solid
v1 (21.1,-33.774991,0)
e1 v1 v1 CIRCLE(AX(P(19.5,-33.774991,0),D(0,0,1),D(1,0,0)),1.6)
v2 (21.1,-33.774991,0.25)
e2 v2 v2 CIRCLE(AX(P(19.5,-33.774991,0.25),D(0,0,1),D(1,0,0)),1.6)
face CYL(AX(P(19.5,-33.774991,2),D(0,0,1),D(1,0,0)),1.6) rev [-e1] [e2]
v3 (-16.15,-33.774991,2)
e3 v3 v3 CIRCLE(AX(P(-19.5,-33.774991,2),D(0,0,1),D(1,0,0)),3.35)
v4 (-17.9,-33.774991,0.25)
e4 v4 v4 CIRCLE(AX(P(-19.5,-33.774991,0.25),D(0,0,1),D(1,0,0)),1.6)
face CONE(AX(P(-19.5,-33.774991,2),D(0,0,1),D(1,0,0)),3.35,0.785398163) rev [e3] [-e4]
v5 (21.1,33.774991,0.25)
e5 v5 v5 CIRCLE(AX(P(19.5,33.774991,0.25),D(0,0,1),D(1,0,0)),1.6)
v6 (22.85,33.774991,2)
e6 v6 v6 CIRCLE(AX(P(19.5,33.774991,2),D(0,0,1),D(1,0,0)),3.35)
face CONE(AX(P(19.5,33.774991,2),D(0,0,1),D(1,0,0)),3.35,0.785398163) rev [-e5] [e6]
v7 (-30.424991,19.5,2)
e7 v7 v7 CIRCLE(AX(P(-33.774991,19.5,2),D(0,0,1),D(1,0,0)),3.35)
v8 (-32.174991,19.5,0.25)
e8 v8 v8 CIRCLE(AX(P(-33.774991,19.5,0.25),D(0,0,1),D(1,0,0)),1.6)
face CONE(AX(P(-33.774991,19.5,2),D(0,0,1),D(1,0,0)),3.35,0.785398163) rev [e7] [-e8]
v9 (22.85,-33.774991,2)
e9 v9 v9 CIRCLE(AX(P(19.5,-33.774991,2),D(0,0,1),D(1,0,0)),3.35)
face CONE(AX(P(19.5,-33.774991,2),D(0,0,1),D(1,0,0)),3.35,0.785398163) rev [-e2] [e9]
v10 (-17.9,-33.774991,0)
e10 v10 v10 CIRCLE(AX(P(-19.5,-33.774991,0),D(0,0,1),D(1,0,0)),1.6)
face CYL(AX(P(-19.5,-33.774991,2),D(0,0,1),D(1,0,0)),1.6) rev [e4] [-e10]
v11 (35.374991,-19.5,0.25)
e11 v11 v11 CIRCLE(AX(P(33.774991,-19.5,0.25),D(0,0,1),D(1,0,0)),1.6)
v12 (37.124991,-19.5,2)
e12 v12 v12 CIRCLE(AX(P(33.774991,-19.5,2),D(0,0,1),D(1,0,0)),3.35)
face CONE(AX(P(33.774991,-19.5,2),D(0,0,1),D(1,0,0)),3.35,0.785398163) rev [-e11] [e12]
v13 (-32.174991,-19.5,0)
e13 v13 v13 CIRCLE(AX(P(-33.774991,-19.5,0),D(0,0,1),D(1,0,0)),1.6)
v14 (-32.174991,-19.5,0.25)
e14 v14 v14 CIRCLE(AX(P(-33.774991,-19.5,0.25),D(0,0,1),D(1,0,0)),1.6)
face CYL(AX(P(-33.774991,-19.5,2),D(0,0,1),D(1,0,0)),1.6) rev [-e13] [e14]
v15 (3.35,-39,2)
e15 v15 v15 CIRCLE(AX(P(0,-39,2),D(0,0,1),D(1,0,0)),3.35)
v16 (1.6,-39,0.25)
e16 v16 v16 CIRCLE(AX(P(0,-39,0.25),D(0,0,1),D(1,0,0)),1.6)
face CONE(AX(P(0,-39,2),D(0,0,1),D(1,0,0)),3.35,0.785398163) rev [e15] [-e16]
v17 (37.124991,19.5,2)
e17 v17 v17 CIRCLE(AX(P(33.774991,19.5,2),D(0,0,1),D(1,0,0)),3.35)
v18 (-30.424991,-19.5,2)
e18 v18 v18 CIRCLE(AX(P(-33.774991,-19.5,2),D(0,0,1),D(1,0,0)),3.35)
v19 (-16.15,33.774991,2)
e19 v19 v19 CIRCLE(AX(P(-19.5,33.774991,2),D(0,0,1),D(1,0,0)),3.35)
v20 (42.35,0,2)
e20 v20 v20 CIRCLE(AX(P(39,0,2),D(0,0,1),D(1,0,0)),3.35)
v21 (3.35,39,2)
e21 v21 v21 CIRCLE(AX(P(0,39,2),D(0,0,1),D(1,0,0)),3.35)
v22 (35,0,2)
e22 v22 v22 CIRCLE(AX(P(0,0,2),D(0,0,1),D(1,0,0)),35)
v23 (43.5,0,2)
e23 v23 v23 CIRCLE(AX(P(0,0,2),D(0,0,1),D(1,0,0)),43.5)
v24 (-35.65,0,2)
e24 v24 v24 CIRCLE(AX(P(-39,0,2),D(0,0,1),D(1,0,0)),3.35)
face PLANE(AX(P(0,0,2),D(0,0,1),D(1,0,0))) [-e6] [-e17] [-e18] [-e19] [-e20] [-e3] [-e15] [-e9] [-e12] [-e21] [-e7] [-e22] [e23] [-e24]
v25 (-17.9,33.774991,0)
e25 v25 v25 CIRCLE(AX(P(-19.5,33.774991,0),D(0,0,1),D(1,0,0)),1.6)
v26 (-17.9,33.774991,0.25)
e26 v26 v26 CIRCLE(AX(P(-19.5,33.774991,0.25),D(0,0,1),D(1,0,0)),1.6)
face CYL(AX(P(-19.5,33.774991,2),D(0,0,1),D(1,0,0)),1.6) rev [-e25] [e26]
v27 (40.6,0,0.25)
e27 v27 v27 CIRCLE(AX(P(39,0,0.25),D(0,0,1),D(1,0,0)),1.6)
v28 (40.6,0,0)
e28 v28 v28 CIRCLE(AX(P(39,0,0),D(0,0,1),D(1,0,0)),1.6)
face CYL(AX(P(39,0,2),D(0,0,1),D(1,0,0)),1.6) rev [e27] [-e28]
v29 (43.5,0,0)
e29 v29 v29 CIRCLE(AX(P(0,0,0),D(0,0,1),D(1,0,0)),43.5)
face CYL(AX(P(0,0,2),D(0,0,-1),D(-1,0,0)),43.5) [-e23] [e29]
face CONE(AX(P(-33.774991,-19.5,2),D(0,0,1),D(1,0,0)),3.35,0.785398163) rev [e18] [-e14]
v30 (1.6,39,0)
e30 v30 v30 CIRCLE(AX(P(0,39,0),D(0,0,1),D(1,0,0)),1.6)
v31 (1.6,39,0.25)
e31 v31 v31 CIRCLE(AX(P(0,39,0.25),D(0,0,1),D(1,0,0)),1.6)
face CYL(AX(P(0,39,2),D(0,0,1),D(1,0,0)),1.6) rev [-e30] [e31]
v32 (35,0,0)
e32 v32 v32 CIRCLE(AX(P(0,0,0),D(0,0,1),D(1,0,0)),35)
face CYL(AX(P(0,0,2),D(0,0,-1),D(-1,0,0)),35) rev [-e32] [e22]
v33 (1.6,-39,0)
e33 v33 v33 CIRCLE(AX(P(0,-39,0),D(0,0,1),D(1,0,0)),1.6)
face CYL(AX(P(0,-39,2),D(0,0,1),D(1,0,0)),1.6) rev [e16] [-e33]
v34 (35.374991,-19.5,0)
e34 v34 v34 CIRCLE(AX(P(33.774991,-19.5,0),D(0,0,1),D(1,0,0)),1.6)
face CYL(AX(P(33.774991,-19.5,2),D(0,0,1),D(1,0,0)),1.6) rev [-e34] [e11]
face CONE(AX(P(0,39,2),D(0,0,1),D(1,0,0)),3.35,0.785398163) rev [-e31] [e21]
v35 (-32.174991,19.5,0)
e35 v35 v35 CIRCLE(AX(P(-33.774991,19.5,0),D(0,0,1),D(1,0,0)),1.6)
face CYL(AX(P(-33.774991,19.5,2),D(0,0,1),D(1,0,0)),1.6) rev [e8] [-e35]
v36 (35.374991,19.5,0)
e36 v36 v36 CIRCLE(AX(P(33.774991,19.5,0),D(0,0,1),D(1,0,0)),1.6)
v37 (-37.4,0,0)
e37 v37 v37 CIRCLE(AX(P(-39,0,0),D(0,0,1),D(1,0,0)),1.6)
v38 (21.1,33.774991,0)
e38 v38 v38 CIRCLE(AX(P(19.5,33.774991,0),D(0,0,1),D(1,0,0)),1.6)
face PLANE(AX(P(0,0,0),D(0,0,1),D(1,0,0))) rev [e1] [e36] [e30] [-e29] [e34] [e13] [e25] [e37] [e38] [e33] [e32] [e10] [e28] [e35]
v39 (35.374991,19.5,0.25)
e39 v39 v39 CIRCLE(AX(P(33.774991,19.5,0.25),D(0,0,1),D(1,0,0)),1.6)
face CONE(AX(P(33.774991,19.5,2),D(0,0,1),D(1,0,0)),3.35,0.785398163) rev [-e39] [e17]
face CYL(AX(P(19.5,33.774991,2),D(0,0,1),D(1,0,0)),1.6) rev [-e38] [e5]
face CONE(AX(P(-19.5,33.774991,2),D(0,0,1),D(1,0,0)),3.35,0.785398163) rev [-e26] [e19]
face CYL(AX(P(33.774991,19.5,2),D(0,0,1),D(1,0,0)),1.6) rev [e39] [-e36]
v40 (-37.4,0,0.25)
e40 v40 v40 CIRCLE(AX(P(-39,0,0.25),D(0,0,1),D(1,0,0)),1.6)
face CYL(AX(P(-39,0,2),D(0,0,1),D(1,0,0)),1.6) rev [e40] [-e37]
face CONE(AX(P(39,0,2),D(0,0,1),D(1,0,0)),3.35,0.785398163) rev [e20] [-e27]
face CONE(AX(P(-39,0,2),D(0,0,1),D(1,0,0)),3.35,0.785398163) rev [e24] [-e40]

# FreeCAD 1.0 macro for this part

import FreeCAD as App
import Part
import Sketcher
from FreeCAD import Vector
Q = App.Units.Quantity


def add_polygon(sketch, points):
    """Adds a closed chain of lines whose ends are joined by coincident constraints."""
    first, n = sketch.GeometryCount, len(points)
    for a, b in zip(points, points[1:] + points[:1]):
        sketch.addGeometry(Part.LineSegment(App.Vector(*a, 0), App.Vector(*b, 0)), False)
    for i in range(n):
        sketch.addConstraint(Sketcher.Constraint("Coincident", first + i, 2, first + (i + 1) % n, 1))

doc = App.newDocument("Part")
body = doc.addObject("PartDesign::Body", "Body")

sketch1 = body.newObject("Sketcher::SketchObject", "Sketch")
sketch1.AttachmentSupport = (doc.getObject("XY_Plane"), [""])
sketch1.MapMode = "FlatFace"
sketch1.addGeometry(Part.Circle(Vector(0, 0, 0), Vector(0, 0, 1), 44), False)
sketch1.addGeometry(Part.Circle(Vector(0, 0, 0), Vector(0, 0, 1), 35), False)
sketch1.addConstraint(Sketcher.Constraint("Coincident", 0, 3, -1, 1))
sketch1.addConstraint(Sketcher.Constraint("Coincident", 1, 3, -1, 1))
sketch1.addConstraint(Sketcher.Constraint("Diameter", 0, 87.0))
sketch1.addConstraint(Sketcher.Constraint("Diameter", 1, 70.0))
pad1 = body.newObject("PartDesign::Pad", "Pad")
pad1.Profile = sketch1
pad1.Length = 2

sketch2 = body.newObject("Sketcher::SketchObject", "Sketch001")
sketch2.AttachmentSupport = (doc.getObject("XY_Plane"), [""])
sketch2.MapMode = "FlatFace"
sketch2.AttachmentOffset = App.Placement(Vector(0, 0, 2), App.Rotation())
sketch2.addGeometry(Part.Circle(Vector(0, 39, 0), Vector(0, 0, 1), 1.5), False)
sketch2.addConstraint(Sketcher.Constraint("PointOnObject", 0, 3, -2))
sketch2.addConstraint(Sketcher.Constraint("Diameter", 0, 3.0))
sketch2.addConstraint(Sketcher.Constraint("DistanceY", -1, 1, 0, 3, 39.0))
pocket1 = body.newObject("PartDesign::Pocket", "Pocket")
pocket1.Profile = sketch2
pocket1.Length = 10
doc.recompute()

polarpattern = body.newObject("PartDesign::PolarPattern", "PolarPattern")
polarpattern.Originals = [pocket1]
polarpattern.Axis = (doc.getObject("Z_Axis"), [""])
polarpattern.Angle = 360
polarpattern.Occurrences = 12
body.Tip = polarpattern

sketch3 = body.newObject("Sketcher::SketchObject", "Sketch002")
sketch3.AttachmentSupport = (doc.getObject("YZ_Plane"), [""])
sketch3.MapMode = "FlatFace"
add_polygon(sketch3, [(39, 0), (39, 2), (35.65, 2), (37.4, 0.25), (37.4, 0)])
sketch3.addGeometry(Part.LineSegment(Vector(39, 2, 0), Vector(39, 0, 0)), True)
sketch3.addConstraint(Sketcher.Constraint("Vertical", 0))
sketch3.addConstraint(Sketcher.Constraint("Horizontal", 1))
sketch3.addConstraint(Sketcher.Constraint("Vertical", 3))
sketch3.addConstraint(Sketcher.Constraint("Horizontal", 4))
sketch3.addConstraint(Sketcher.Constraint("Vertical", 5))
sketch3.addConstraint(Sketcher.Constraint("Coincident", 5, 1, 0, 2))
sketch3.addConstraint(Sketcher.Constraint("PointOnObject", 3, 2, -1))
sketch3.addConstraint(Sketcher.Constraint("PointOnObject", 5, 2, -1))
sketch3.addConstraint(Sketcher.Constraint("DistanceY", 0, 1, 0, 2, 2.0))
sketch3.addConstraint(Sketcher.Constraint("Angle", 2, Q("-45 deg")))
sketch3.addConstraint(Sketcher.Constraint("DistanceX", 4, 1, 4, 2, 1.6))
sketch3.addConstraint(Sketcher.Constraint("DistanceX", -1, 1, 0, 2, 39.0))
sketch3.addConstraint(Sketcher.Constraint("DistanceX", 1, 2, 1, 1, 3.35))
groove = body.newObject("PartDesign::Groove", "Groove")
groove.Profile = sketch3
groove.ReferenceAxis = (sketch3, ["Axis0"])
groove.Angle = 360
doc.recompute()

polarpattern2 = body.newObject("PartDesign::PolarPattern", "PolarPattern001")
polarpattern2.Originals = [groove]
polarpattern2.Axis = (doc.getObject("Z_Axis"), [""])
polarpattern2.Angle = 360
polarpattern2.Occurrences = 12
body.Tip = polarpattern2

doc.recompute()
